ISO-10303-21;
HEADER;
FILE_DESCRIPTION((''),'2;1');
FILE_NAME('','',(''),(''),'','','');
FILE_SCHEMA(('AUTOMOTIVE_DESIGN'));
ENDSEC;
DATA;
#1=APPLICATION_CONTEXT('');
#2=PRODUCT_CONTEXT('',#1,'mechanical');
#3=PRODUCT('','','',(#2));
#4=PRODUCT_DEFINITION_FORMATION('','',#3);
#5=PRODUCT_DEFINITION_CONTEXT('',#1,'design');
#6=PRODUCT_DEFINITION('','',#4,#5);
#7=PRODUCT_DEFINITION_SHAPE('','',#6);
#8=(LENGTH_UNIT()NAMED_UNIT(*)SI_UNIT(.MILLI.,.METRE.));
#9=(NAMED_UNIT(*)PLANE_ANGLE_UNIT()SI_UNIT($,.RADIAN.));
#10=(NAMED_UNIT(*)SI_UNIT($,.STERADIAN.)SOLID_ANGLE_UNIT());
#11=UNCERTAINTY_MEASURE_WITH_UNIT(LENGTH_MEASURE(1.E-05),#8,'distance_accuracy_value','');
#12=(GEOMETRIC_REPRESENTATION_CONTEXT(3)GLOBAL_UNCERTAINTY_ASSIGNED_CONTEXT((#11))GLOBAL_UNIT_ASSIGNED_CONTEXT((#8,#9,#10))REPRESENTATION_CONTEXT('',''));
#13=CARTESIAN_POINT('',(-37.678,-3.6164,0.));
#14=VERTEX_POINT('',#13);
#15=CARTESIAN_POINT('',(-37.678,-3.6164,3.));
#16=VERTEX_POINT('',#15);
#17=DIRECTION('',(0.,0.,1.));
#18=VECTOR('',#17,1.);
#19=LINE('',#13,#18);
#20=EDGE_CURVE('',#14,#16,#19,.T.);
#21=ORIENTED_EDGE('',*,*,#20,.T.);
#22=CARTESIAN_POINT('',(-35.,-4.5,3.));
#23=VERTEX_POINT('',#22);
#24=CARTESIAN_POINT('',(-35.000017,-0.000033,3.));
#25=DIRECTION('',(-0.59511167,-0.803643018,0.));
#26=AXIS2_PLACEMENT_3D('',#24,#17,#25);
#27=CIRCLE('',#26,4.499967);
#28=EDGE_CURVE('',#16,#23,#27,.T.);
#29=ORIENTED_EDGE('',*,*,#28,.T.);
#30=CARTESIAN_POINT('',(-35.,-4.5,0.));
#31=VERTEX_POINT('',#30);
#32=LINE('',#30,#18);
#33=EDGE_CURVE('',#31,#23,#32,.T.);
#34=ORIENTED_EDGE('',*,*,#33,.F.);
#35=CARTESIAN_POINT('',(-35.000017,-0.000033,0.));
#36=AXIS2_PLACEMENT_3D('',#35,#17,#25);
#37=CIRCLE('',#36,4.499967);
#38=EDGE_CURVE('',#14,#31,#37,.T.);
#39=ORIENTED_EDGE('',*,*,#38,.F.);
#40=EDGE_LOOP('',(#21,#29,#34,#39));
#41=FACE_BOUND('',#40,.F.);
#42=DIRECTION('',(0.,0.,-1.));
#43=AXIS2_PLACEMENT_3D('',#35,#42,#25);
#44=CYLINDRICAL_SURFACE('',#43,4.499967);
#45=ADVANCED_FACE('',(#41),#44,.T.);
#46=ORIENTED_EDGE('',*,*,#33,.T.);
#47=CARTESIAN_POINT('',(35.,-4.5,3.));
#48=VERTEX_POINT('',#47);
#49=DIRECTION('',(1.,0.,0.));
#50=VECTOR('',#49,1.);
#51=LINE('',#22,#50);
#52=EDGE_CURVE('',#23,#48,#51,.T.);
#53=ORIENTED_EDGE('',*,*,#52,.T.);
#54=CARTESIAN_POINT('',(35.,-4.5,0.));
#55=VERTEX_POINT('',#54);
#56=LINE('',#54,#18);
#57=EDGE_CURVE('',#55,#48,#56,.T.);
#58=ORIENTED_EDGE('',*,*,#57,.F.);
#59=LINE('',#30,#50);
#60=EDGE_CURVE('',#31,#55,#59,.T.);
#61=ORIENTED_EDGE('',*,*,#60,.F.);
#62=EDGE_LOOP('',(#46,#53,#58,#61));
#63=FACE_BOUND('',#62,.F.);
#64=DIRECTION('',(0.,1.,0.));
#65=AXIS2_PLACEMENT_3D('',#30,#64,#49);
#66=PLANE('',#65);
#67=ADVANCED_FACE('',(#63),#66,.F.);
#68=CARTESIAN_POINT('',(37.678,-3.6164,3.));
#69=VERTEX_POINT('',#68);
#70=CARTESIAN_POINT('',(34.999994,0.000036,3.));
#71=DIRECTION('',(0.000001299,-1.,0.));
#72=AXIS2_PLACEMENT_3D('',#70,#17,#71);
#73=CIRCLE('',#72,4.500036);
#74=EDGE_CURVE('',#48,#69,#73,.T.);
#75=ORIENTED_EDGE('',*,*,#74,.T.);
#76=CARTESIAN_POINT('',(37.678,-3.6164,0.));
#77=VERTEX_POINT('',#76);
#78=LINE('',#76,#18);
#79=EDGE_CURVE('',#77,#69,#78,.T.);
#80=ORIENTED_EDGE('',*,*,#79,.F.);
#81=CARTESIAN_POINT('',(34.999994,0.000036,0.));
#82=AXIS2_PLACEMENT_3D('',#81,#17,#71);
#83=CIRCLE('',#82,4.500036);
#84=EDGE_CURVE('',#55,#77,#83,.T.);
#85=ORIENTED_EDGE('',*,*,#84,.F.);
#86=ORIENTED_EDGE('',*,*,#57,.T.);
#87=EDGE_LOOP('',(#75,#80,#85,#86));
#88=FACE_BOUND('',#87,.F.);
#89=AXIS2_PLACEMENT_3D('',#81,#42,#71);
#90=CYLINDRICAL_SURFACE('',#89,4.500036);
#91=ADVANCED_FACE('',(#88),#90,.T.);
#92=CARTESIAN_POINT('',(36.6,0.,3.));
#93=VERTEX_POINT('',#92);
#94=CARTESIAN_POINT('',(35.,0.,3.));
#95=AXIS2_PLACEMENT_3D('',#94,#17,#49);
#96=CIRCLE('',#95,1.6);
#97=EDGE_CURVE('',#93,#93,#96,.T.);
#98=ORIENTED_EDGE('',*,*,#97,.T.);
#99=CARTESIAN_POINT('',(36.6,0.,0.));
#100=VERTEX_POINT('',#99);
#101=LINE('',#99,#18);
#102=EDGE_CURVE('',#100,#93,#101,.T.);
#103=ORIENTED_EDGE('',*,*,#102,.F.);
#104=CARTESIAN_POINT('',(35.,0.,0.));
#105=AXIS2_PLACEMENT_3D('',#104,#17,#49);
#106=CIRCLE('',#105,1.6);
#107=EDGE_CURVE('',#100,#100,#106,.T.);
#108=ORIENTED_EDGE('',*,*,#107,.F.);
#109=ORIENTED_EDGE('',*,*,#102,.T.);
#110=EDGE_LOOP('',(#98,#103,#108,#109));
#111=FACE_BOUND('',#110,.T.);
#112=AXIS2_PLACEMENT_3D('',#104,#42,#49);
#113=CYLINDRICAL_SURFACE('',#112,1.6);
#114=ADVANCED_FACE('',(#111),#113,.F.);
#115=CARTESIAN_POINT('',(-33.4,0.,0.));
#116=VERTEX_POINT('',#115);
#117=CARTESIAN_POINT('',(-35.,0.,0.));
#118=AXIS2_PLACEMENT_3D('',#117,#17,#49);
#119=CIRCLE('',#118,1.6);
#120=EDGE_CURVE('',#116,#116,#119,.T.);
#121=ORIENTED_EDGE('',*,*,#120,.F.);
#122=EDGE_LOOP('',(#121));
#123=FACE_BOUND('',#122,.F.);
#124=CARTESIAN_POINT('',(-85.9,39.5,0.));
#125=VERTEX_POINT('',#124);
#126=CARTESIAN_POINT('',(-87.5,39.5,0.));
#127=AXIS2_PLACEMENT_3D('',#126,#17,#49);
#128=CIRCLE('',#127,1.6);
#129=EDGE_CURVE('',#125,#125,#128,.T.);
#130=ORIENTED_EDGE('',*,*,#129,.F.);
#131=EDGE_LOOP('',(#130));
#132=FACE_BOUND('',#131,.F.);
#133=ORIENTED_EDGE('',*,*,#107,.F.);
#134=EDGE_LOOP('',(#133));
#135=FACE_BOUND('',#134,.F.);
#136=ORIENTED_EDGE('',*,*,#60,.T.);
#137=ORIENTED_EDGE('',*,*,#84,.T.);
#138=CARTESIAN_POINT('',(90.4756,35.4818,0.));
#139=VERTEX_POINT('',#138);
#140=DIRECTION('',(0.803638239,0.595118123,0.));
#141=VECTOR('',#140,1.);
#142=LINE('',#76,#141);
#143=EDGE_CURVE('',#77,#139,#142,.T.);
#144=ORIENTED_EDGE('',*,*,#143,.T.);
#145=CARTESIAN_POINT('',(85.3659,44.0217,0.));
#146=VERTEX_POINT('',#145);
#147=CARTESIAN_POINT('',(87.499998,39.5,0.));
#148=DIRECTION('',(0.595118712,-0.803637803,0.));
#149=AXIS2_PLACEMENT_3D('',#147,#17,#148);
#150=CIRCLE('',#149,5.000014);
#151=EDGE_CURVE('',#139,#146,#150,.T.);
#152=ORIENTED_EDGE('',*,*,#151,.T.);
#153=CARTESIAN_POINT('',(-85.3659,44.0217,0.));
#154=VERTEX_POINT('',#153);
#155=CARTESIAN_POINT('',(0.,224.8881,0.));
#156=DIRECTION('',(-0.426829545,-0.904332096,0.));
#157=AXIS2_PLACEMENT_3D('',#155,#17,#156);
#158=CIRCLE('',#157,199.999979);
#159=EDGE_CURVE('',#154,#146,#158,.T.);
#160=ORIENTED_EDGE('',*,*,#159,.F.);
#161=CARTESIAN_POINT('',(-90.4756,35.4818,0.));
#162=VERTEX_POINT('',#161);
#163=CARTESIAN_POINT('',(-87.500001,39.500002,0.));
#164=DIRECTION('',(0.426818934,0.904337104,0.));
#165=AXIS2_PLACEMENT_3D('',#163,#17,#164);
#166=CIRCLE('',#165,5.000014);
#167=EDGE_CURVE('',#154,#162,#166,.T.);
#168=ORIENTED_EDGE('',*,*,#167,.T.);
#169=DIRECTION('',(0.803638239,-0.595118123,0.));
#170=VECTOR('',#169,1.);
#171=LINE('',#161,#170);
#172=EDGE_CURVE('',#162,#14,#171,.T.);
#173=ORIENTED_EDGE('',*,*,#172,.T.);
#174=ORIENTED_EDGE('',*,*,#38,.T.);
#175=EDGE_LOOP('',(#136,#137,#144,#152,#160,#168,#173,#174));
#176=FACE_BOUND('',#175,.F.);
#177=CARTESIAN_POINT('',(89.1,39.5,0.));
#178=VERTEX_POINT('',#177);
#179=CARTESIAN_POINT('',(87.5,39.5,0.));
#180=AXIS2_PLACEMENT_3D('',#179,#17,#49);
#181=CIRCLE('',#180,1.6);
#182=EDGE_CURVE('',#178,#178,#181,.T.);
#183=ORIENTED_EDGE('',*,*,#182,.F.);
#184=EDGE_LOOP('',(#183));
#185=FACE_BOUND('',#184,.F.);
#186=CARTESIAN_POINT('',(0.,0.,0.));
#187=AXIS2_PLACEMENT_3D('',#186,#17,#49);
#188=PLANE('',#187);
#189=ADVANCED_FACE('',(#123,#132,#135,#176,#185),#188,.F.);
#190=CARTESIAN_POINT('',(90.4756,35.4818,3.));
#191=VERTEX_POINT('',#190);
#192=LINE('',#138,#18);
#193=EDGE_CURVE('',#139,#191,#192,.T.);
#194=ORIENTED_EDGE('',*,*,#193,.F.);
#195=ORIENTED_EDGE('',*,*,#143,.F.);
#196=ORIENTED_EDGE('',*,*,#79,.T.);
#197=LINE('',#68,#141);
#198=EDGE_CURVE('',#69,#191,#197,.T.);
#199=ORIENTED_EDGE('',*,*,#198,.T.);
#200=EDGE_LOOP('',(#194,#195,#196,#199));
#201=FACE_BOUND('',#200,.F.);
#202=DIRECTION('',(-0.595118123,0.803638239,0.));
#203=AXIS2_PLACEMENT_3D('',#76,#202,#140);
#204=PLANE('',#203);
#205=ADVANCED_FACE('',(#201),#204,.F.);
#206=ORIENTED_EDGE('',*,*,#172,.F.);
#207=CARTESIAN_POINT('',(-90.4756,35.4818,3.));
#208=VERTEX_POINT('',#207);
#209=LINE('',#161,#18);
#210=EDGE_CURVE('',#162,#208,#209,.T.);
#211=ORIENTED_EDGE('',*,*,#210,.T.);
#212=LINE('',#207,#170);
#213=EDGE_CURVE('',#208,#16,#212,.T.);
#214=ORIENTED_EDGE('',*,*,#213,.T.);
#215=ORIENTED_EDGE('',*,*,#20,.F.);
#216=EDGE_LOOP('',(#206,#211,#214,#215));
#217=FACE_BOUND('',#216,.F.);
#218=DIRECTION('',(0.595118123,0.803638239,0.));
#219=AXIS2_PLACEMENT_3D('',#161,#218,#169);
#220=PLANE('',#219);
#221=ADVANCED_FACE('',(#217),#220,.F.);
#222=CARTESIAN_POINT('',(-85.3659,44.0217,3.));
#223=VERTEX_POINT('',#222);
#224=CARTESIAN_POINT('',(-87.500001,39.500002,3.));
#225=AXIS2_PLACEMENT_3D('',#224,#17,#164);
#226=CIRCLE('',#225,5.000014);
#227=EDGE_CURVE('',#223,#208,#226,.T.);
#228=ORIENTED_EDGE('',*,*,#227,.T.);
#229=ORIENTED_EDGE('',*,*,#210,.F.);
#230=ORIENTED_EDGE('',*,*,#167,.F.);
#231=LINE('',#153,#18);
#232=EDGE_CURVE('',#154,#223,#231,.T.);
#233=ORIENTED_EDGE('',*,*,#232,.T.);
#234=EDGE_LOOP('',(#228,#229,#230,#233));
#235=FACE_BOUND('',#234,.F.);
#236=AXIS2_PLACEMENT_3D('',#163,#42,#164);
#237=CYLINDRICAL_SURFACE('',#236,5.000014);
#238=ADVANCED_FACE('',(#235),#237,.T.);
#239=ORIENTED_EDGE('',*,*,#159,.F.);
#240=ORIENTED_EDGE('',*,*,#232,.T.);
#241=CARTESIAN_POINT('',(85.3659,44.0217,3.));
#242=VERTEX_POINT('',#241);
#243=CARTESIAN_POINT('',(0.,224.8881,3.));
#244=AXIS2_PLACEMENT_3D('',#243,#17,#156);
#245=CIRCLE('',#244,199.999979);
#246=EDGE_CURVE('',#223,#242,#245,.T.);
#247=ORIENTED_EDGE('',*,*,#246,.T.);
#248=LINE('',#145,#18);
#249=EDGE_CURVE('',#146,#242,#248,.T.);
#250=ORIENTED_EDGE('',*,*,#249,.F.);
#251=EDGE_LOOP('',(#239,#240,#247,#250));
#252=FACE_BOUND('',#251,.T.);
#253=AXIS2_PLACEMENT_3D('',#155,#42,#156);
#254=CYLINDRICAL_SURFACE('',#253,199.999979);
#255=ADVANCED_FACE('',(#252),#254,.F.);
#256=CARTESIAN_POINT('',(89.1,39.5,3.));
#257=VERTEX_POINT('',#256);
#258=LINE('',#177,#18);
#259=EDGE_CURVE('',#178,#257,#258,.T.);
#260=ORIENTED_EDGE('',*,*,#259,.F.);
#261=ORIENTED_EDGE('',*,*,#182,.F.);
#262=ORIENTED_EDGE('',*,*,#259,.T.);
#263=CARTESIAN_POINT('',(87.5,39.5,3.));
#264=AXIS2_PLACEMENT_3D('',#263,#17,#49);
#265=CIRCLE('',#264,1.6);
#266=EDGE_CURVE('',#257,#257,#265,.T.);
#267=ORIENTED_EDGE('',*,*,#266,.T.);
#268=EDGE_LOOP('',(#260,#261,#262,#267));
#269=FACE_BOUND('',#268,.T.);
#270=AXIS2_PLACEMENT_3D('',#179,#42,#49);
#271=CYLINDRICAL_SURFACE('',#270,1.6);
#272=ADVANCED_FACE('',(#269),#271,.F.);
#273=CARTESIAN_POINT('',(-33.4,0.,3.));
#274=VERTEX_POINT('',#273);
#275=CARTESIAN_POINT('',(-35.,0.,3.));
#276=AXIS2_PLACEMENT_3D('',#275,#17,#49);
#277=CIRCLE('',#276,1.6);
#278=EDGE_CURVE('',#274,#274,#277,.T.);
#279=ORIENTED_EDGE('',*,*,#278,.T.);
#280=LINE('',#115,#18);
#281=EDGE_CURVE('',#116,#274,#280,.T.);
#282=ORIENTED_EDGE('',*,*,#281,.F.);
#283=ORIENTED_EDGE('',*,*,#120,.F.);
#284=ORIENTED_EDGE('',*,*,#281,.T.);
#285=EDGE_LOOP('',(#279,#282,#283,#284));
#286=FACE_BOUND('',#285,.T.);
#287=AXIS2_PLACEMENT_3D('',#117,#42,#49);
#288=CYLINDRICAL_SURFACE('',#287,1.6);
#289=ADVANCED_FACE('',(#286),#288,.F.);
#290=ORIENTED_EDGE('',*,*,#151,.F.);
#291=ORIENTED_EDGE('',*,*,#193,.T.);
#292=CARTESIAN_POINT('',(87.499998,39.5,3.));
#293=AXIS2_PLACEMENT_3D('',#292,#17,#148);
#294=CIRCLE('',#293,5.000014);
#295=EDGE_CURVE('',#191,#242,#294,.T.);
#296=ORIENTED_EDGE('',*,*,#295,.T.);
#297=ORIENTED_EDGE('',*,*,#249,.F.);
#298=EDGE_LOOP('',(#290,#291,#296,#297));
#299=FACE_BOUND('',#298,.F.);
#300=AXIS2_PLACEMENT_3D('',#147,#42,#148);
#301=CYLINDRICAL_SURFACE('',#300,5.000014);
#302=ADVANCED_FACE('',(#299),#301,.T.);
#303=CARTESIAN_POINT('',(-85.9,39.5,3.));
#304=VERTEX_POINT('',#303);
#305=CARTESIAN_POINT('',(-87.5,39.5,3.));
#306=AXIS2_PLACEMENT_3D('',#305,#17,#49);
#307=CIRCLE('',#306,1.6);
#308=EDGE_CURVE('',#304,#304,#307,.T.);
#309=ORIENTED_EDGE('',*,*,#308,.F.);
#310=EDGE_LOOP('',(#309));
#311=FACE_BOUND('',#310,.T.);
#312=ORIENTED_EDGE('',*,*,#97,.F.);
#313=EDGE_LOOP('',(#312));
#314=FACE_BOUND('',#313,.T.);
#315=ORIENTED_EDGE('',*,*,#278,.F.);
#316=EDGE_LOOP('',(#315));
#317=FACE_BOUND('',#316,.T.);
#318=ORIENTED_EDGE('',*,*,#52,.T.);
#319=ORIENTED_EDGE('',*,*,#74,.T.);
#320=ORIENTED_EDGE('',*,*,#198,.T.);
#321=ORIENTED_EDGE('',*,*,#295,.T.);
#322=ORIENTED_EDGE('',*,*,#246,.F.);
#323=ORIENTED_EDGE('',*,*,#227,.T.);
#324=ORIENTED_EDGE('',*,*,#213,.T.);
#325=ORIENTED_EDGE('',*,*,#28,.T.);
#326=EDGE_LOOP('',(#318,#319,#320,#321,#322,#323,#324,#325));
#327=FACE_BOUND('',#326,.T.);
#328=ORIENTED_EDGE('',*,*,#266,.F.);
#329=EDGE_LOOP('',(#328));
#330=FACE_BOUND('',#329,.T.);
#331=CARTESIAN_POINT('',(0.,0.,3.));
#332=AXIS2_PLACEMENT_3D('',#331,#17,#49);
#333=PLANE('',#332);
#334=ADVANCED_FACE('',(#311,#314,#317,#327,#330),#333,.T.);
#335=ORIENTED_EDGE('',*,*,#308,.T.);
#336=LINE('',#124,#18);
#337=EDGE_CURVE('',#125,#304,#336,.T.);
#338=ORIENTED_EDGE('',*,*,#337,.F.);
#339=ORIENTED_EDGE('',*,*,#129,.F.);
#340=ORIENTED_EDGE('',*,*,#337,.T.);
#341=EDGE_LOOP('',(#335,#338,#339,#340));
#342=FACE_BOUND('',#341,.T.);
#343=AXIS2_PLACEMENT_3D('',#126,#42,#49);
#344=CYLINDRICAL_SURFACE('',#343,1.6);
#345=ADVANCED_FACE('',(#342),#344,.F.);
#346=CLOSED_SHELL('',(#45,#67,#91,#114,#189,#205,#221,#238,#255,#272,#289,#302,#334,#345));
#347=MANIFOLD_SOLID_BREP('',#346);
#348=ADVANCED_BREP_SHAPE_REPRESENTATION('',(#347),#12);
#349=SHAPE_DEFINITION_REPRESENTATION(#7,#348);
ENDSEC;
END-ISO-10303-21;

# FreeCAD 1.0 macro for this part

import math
import FreeCAD as App
import Part
import Sketcher
from FreeCAD import Vector
Q = App.Units.Quantity

doc = App.newDocument("Part")
params = doc.addObject("Spreadsheet::Sheet", "Params")
for row, (alias, value) in enumerate([
    ("sketch1_radius", "200 mm"),
    ("sketch1_radius2", "5 mm"),
    ("sketch1_diameter", "3.2 mm"),
    ("sketch1_radius3", "4.5 mm"),
    ("sketch1_width", "70 mm"),
    ("pad1_length", "3 mm"),
], start=1):
    params.set(f"A{row}", alias)
    params.set(f"B{row}", "=" + value)
    params.setAlias(f"B{row}", alias)

body = doc.addObject("PartDesign::Body", "Body")

sketch1 = doc.addObject("Sketcher::SketchObject", "Sketch")
body.addObject(sketch1)
sketch1.AttachmentSupport = (doc.XY_Plane, [""])
sketch1.MapMode = "FlatFace"
sketch1.addGeometry([
    Part.ArcOfCircle(Part.Circle(Vector(0, 224.9, 0), Vector(0, 0, 1), 200), math.radians(-115), math.radians(-65)),
    Part.ArcOfCircle(Part.Circle(Vector(-87.5, 39.5, 0), Vector(0, 0, 1), 5), math.radians(65), math.radians(233)),
    Part.LineSegment(Vector(-90.5, 35.5, 0), Vector(-37.7, -3.6, 0)),
    Part.ArcOfCircle(Part.Circle(Vector(-35, 0, 0), Vector(0, 0, 1), 4.5), math.radians(-127), math.radians(-90)),
    Part.LineSegment(Vector(-35, -4.5, 0), Vector(35, -4.5, 0)),
    Part.ArcOfCircle(Part.Circle(Vector(35, 0, 0), Vector(0, 0, 1), 4.5), math.radians(-90), math.radians(-53)),
    Part.LineSegment(Vector(37.7, -3.6, 0), Vector(90.5, 35.5, 0)),
    Part.ArcOfCircle(Part.Circle(Vector(87.5, 39.5, 0), Vector(0, 0, 1), 5), math.radians(-53), math.radians(115)),
    Part.Circle(Vector(-35, 0, 0), Vector(0, 0, 1), 1.6),
    Part.Circle(Vector(35, 0, 0), Vector(0, 0, 1), 1.6),
    Part.Circle(Vector(-87.5, 39.5, 0), Vector(0, 0, 1), 1.6),
    Part.Circle(Vector(87.5, 39.5, 0), Vector(0, 0, 1), 1.6),
], False)
sketch1.addConstraint([
    Sketcher.Constraint("Tangent", 0, 1, 1, 1),
    Sketcher.Constraint("Tangent", 1, 2, 2, 1),
    Sketcher.Constraint("Tangent", 2, 2, 3, 1),
    Sketcher.Constraint("Tangent", 3, 2, 4, 1),
    Sketcher.Constraint("Tangent", 4, 2, 5, 1),
    Sketcher.Constraint("Tangent", 5, 2, 6, 1),
    Sketcher.Constraint("Tangent", 6, 2, 7, 1),
    Sketcher.Constraint("Tangent", 7, 2, 0, 2),
    Sketcher.Constraint("Horizontal", 4),
    Sketcher.Constraint("Coincident", 8, 3, 3, 3),
    Sketcher.Constraint("Coincident", 9, 3, 5, 3),
    Sketcher.Constraint("Coincident", 10, 3, 1, 3),
    Sketcher.Constraint("Coincident", 11, 3, 7, 3),
    Sketcher.Constraint("Equal", 3, 5),
    Sketcher.Constraint("Equal", 1, 7),
    Sketcher.Constraint("Equal", 8, 9),
    Sketcher.Constraint("Equal", 9, 10),
    Sketcher.Constraint("Equal", 10, 11),
    Sketcher.Constraint("Symmetric", 3, 3, 5, 3, -1, 1),
    Sketcher.Constraint("Symmetric", 1, 3, 7, 3, -2),
    Sketcher.Constraint("Radius", 0, Q("200 mm")),
    Sketcher.Constraint("Radius", 1, Q("5 mm")),
    Sketcher.Constraint("Diameter", 8, Q("3.2 mm")),
    Sketcher.Constraint("Radius", 3, Q("4.5 mm")),
    Sketcher.Constraint("DistanceX", 4, 1, 4, 2, Q("70 mm")),
    Sketcher.Constraint("DistanceX", 1, 3, 7, 3, Q("175 mm")),
    Sketcher.Constraint("DistanceY", -1, 1, 1, 3, Q("39.5 mm")),
])
sketch1.setExpression("Constraints[20]", "Params.sketch1_radius")
sketch1.setExpression("Constraints[21]", "Params.sketch1_radius2")
sketch1.setExpression("Constraints[22]", "Params.sketch1_diameter")
sketch1.setExpression("Constraints[23]", "Params.sketch1_radius3")
sketch1.setExpression("Constraints[24]", "Params.sketch1_width")
pad1 = doc.addObject("PartDesign::Pad", "Pad")
body.addObject(pad1)
pad1.Profile = sketch1
pad1.setExpression("Length", "Params.pad1_length")

doc.recompute()
